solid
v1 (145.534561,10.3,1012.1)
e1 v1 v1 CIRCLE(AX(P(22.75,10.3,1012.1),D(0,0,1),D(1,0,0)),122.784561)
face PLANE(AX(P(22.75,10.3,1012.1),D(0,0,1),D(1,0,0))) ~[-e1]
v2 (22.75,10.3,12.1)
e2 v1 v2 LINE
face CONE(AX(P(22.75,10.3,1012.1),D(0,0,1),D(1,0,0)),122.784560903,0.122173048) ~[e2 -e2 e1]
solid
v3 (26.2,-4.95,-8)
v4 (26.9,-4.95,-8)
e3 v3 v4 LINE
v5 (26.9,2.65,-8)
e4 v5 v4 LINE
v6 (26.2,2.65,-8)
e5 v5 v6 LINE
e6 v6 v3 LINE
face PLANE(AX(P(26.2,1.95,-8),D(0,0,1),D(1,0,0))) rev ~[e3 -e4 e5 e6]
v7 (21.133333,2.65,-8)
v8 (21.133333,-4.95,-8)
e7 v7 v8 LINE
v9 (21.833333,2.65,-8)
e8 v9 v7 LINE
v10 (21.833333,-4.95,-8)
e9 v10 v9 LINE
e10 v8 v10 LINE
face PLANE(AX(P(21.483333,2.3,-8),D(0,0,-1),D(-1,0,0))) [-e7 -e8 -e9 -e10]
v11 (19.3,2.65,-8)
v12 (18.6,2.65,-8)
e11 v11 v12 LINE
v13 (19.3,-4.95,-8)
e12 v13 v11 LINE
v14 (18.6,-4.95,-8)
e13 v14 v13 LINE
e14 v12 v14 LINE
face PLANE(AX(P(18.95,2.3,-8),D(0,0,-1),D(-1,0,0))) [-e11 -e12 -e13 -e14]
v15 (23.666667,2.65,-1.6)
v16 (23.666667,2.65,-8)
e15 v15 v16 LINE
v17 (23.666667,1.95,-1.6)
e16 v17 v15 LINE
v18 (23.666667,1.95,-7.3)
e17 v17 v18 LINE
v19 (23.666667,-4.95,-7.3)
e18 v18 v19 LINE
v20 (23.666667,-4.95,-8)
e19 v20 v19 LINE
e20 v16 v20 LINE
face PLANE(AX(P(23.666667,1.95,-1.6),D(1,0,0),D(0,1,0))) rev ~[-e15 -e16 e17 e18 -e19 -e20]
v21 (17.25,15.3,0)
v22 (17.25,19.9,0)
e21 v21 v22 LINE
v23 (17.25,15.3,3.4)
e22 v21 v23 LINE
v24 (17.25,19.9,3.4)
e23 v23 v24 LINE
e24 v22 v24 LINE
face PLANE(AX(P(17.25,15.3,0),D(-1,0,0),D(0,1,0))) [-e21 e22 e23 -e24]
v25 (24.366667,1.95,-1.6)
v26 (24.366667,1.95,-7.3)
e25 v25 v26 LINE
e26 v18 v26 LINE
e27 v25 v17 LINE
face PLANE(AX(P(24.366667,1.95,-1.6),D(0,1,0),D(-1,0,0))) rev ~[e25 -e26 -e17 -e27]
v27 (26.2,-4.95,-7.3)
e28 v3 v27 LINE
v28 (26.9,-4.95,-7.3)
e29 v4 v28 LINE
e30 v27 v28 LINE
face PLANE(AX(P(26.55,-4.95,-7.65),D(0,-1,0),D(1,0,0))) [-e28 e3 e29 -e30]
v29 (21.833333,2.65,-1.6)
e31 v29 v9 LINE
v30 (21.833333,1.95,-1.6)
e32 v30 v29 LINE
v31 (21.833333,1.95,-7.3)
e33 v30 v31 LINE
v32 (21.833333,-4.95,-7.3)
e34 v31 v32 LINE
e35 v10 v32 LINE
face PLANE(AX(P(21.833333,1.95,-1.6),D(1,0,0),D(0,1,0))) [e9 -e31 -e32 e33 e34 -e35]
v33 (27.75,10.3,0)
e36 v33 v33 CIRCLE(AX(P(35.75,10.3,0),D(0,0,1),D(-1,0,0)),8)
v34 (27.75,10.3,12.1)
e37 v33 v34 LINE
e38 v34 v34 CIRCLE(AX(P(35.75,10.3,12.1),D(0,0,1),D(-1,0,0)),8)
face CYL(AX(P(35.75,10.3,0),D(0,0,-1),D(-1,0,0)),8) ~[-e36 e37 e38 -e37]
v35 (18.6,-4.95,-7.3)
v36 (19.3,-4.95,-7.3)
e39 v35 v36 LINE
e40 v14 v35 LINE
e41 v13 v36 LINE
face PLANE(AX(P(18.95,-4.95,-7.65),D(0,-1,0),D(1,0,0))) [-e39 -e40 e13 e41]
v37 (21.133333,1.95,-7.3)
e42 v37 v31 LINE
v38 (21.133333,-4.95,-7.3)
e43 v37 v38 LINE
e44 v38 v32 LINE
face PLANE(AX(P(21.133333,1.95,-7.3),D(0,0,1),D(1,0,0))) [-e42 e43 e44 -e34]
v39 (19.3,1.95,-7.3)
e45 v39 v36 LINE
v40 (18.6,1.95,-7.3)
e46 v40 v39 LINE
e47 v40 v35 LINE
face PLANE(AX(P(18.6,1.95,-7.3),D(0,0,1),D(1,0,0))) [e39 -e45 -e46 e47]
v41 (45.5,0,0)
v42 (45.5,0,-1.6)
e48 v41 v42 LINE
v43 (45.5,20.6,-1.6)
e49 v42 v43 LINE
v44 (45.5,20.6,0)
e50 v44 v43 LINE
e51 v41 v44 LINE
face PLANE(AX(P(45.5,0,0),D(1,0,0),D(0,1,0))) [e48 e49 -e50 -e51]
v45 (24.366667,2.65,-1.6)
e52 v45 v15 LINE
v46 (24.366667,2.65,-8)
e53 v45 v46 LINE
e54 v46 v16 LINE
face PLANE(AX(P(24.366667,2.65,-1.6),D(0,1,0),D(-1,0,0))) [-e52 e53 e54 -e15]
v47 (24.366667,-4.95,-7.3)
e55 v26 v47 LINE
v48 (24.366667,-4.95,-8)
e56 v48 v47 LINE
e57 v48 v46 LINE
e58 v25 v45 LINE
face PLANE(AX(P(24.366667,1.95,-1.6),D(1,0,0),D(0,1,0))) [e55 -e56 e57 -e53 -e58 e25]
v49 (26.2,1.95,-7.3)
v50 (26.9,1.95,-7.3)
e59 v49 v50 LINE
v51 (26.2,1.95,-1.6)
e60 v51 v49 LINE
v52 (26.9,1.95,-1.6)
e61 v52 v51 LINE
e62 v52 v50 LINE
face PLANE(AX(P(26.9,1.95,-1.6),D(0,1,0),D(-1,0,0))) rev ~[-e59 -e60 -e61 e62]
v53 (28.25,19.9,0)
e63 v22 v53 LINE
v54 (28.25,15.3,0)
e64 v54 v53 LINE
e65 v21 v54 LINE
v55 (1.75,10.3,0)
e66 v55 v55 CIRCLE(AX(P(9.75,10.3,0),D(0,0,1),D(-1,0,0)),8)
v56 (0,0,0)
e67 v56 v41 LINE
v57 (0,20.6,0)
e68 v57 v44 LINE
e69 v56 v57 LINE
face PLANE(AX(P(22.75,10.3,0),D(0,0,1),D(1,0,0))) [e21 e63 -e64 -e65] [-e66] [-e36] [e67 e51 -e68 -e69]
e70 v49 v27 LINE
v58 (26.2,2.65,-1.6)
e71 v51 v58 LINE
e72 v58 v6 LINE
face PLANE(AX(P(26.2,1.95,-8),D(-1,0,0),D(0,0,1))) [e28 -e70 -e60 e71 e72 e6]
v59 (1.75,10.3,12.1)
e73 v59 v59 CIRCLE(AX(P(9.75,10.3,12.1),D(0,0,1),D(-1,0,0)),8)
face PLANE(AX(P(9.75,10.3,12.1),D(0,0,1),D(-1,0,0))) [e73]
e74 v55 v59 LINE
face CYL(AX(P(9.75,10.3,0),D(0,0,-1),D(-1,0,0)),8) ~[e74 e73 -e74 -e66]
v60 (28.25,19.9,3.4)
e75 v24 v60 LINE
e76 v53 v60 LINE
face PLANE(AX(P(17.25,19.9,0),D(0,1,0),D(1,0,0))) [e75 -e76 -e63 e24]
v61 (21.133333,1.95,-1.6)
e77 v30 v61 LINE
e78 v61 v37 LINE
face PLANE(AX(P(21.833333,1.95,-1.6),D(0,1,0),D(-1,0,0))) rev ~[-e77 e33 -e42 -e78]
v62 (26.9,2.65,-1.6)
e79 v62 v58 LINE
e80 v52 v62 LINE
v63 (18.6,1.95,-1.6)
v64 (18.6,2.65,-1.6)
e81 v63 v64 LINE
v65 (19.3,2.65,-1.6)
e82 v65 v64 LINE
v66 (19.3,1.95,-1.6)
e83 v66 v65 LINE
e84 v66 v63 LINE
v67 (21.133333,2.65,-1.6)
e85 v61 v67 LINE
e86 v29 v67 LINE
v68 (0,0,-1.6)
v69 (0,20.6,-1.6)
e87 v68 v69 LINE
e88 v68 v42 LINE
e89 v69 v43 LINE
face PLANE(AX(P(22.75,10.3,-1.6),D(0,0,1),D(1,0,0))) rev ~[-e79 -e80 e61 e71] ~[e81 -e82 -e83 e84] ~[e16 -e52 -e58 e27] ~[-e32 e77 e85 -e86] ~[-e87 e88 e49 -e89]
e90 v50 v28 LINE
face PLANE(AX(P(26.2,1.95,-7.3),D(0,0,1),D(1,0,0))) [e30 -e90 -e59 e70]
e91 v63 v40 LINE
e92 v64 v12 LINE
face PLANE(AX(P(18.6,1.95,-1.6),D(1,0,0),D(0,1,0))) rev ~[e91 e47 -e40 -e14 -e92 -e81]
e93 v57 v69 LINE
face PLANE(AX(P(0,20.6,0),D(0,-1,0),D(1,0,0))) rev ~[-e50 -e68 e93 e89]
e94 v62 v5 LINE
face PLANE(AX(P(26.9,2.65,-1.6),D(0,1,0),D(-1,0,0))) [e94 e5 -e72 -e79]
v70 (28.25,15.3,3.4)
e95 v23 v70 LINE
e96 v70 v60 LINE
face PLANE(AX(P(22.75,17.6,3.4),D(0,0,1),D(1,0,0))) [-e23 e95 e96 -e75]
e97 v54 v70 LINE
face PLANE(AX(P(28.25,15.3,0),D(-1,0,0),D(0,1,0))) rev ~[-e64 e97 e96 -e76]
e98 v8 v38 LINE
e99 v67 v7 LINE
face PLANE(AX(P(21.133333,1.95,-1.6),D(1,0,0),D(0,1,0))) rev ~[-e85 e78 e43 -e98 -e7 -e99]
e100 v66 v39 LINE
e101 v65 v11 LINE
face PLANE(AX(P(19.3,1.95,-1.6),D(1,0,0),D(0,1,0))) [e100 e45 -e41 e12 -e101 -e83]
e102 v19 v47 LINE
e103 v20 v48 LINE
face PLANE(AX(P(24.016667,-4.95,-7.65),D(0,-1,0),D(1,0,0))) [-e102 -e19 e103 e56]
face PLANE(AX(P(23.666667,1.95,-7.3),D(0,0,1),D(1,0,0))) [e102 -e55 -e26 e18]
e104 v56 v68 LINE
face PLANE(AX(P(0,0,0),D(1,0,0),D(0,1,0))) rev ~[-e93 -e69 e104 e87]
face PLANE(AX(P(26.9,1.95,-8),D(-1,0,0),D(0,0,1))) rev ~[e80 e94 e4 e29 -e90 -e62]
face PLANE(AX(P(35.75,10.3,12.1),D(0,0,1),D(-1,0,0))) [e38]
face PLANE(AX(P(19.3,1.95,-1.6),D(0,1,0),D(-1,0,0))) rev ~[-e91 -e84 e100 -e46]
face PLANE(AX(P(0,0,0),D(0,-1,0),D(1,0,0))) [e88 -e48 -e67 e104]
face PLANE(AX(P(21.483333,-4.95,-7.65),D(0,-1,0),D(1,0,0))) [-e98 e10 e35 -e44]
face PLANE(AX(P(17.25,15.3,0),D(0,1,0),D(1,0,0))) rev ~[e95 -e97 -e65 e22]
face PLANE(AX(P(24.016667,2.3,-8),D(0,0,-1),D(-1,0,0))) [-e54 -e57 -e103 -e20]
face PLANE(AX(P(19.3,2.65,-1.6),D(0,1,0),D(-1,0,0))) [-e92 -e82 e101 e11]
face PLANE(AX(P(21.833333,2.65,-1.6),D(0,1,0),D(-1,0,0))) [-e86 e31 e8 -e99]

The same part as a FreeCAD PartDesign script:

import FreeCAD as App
import Part
import Sketcher

V = App.Vector
Q = App.Units.Quantity

doc = App.newDocument("Part")
body = doc.addObject("PartDesign::Body", "Body")

# Sketch on XY plane
sketch1 = body.newObject("Sketcher::SketchObject", "Sketch")
sketch1.AttachmentSupport = (doc.getObject("XY_Plane"), [""])
sketch1.MapMode = "FlatFace"
sketch1.addGeometry([
    Part.LineSegment(V(0, 21, 0), V(0, 0, 0)),
    Part.LineSegment(V(0, 0, 0), V(46, 0, 0)),
    Part.LineSegment(V(46, 0, 0), V(46, 21, 0)),
    Part.LineSegment(V(46, 21, 0), V(0, 21, 0)),
], False)
sketch1.addConstraint([
    Sketcher.Constraint("Coincident", 0, 2, 1, 1),
    Sketcher.Constraint("Coincident", 1, 2, 2, 1),
    Sketcher.Constraint("Coincident", 2, 2, 3, 1),
    Sketcher.Constraint("Coincident", 3, 2, 0, 1),
    Sketcher.Constraint("Vertical", 0),
    Sketcher.Constraint("Horizontal", 1),
    Sketcher.Constraint("Vertical", 2),
    Sketcher.Constraint("Horizontal", 3),
    Sketcher.Constraint("Coincident", 0, 2, -1, 1),
    Sketcher.Constraint("DistanceX", 1, 1, 1, 2, Q("45.5 mm")),
    Sketcher.Constraint("DistanceY", 0, 2, 0, 1, Q("20.6 mm")),
])
pad1 = body.newObject("PartDesign::Pad", "Pad")
pad1.Profile = sketch1
pad1.Length = 1.6
pad1.Reversed = True

# Sketch on XY plane
sketch2 = body.newObject("Sketcher::SketchObject", "Sketch001")
sketch2.AttachmentSupport = (doc.getObject("XY_Plane"), [""])
sketch2.MapMode = "FlatFace"
sketch2.addGeometry([
    Part.Circle(V(10, 10, 0), V(0, 0, 1), 8),
    Part.Circle(V(36, 10, 0), V(0, 0, 1), 8),
], False)
sketch2.addConstraint([
    Sketcher.Constraint("Equal", 0, 1),
    Sketcher.Constraint("Horizontal", 0, 3, 1, 3),
    Sketcher.Constraint("Diameter", 0, Q("16 mm")),
    Sketcher.Constraint("DistanceX", 0, 3, 1, 3, Q("26 mm")),
    Sketcher.Constraint("DistanceY", -1, 1, 0, 3, Q("10.3 mm")),
    Sketcher.Constraint("DistanceX", -1, 1, 0, 3, Q("9.75 mm")),
])
pad2 = body.newObject("PartDesign::Pad", "Pad001")
pad2.Profile = sketch2
pad2.Length = 12.1

# Sketch on XY plane
sketch3 = body.newObject("Sketcher::SketchObject", "Sketch002")
sketch3.AttachmentSupport = (doc.getObject("XY_Plane"), [""])
sketch3.MapMode = "FlatFace"
sketch3.addGeometry([
    Part.LineSegment(V(17.2, 19.9, 0), V(17.2, 15.3, 0)),
    Part.LineSegment(V(17.2, 15.3, 0), V(28.2, 15.3, 0)),
    Part.LineSegment(V(28.2, 15.3, 0), V(28.2, 19.9, 0)),
    Part.LineSegment(V(28.2, 19.9, 0), V(17.2, 19.9, 0)),
], False)
sketch3.addConstraint([
    Sketcher.Constraint("Coincident", 0, 2, 1, 1),
    Sketcher.Constraint("Coincident", 1, 2, 2, 1),
    Sketcher.Constraint("Coincident", 2, 2, 3, 1),
    Sketcher.Constraint("Coincident", 3, 2, 0, 1),
    Sketcher.Constraint("Vertical", 0),
    Sketcher.Constraint("Horizontal", 1),
    Sketcher.Constraint("Vertical", 2),
    Sketcher.Constraint("Horizontal", 3),
    Sketcher.Constraint("DistanceX", 1, 1, 1, 2, Q("11 mm")),
    Sketcher.Constraint("DistanceY", 0, 2, 0, 1, Q("4.6 mm")),
    Sketcher.Constraint("DistanceY", -1, 1, 0, 2, Q("15.3 mm")),
    Sketcher.Constraint("DistanceX", -1, 1, 0, 2, Q("17.25 mm")),
])
pad3 = body.newObject("PartDesign::Pad", "Pad002")
pad3.Profile = sketch3
pad3.Length = 3.4

# Sketch on XY plane
sketch4 = body.newObject("Sketcher::SketchObject", "Sketch003")
sketch4.AttachmentSupport = (doc.getObject("XY_Plane"), [""])
sketch4.MapMode = "FlatFace"
sketch4.AttachmentOffset = App.Placement(V(0, 0, -1.6), App.Rotation())
sketch4.addGeometry([
    Part.LineSegment(V(26.9, 2.6, 0), V(26.9, 1.9, 0)),  # 0
    Part.LineSegment(V(26.9, 1.9, 0), V(26.2, 1.9, 0)),  # 1
    Part.LineSegment(V(26.2, 1.9, 0), V(26.2, 2.6, 0)),  # 2
    Part.LineSegment(V(26.2, 2.6, 0), V(26.9, 2.6, 0)),  # 3
    Part.LineSegment(V(24.4, 2.6, 0), V(24.4, 1.9, 0)),  # 4
    Part.LineSegment(V(24.4, 1.9, 0), V(23.7, 1.9, 0)),  # 5
    Part.LineSegment(V(23.7, 1.9, 0), V(23.7, 2.6, 0)),  # 6
    Part.LineSegment(V(23.7, 2.6, 0), V(24.4, 2.6, 0)),  # 7
    Part.LineSegment(V(21.8, 2.6, 0), V(21.8, 1.9, 0)),  # 8
    Part.LineSegment(V(21.8, 1.9, 0), V(21.1, 1.9, 0)),  # 9
    Part.LineSegment(V(21.1, 1.9, 0), V(21.1, 2.6, 0)),  # 10
    Part.LineSegment(V(21.1, 2.6, 0), V(21.8, 2.6, 0)),  # 11
    Part.LineSegment(V(19.3, 2.6, 0), V(19.3, 1.9, 0)),  # 12
    Part.LineSegment(V(19.3, 1.9, 0), V(18.6, 1.9, 0)),  # 13
    Part.LineSegment(V(18.6, 1.9, 0), V(18.6, 2.6, 0)),  # 14
    Part.LineSegment(V(18.6, 2.6, 0), V(19.3, 2.6, 0)),  # 15
], False)
sketch4.addConstraint([
    Sketcher.Constraint("Coincident", 0, 2, 1, 1),
    Sketcher.Constraint("Coincident", 1, 2, 2, 1),
    Sketcher.Constraint("Coincident", 2, 2, 3, 1),
    Sketcher.Constraint("Coincident", 3, 2, 0, 1),
    Sketcher.Constraint("Coincident", 4, 2, 5, 1),
    Sketcher.Constraint("Coincident", 5, 2, 6, 1),
    Sketcher.Constraint("Coincident", 6, 2, 7, 1),
    Sketcher.Constraint("Coincident", 7, 2, 4, 1),
    Sketcher.Constraint("Coincident", 8, 2, 9, 1),
    Sketcher.Constraint("Coincident", 9, 2, 10, 1),
    Sketcher.Constraint("Coincident", 10, 2, 11, 1),
    Sketcher.Constraint("Coincident", 11, 2, 8, 1),
    Sketcher.Constraint("Coincident", 12, 2, 13, 1),
    Sketcher.Constraint("Coincident", 13, 2, 14, 1),
    Sketcher.Constraint("Coincident", 14, 2, 15, 1),
    Sketcher.Constraint("Coincident", 15, 2, 12, 1),
    Sketcher.Constraint("Vertical", 0),
    Sketcher.Constraint("Horizontal", 1),
    Sketcher.Constraint("Vertical", 2),
    Sketcher.Constraint("Horizontal", 3),
    Sketcher.Constraint("Vertical", 4),
    Sketcher.Constraint("Horizontal", 5),
    Sketcher.Constraint("Vertical", 6),
    Sketcher.Constraint("Horizontal", 7),
    Sketcher.Constraint("Vertical", 8),
    Sketcher.Constraint("Horizontal", 9),
    Sketcher.Constraint("Vertical", 10),
    Sketcher.Constraint("Horizontal", 11),
    Sketcher.Constraint("Vertical", 12),
    Sketcher.Constraint("Horizontal", 13),
    Sketcher.Constraint("Vertical", 14),
    Sketcher.Constraint("Horizontal", 15),
    Sketcher.Constraint("Horizontal", 1, 2, 4, 2),
    Sketcher.Constraint("Horizontal", 3, 2, 6, 2),
    Sketcher.Constraint("Horizontal", 5, 2, 8, 2),
    Sketcher.Constraint("Horizontal", 7, 2, 10, 2),
    Sketcher.Constraint("Horizontal", 9, 2, 12, 2),
    Sketcher.Constraint("Horizontal", 11, 2, 14, 2),
    Sketcher.Constraint("Equal", 3, 5),
    Sketcher.Constraint("Equal", 7, 9),
    Sketcher.Constraint("Equal", 11, 13),
    Sketcher.Constraint("Equal", 15, 0),
    Sketcher.Constraint("DistanceX", 1, 2, 1, 1, Q("0.7 mm")),
    Sketcher.Constraint("DistanceX", -1, 1, 0, 2, Q("26.9 mm")),
    Sketcher.Constraint("DistanceX", -1, 1, 12, 2, Q("19.3 mm")),
    Sketcher.Constraint("DistanceY", -1, 1, 0, 2, Q("1.95 mm")),
    Sketcher.Constraint("DistanceX", -1, 1, 4, 2, Q("24.366667 mm")),
    Sketcher.Constraint("DistanceX", -1, 1, 8, 2, Q("21.833333 mm")),
])
pad4 = body.newObject("PartDesign::Pad", "Pad003")
pad4.Profile = sketch4
pad4.Length = 6.4
pad4.Reversed = True

# Sketch on XZ plane
sketch5 = body.newObject("Sketcher::SketchObject", "Sketch004")
sketch5.AttachmentSupport = (doc.getObject("XZ_Plane"), [""])
sketch5.MapMode = "FlatFace"
sketch5.AttachmentOffset = App.Placement(V(0, 0, -1.95), App.Rotation())
sketch5.addGeometry([
    Part.LineSegment(V(26.2, -7.3, 0), V(26.2, -8, 0)),  # 0
    Part.LineSegment(V(26.2, -8, 0), V(26.9, -8, 0)),  # 1
    Part.LineSegment(V(26.9, -8, 0), V(26.9, -7.3, 0)),  # 2
    Part.LineSegment(V(26.9, -7.3, 0), V(26.2, -7.3, 0)),  # 3
    Part.LineSegment(V(23.7, -7.3, 0), V(23.7, -8, 0)),  # 4
    Part.LineSegment(V(23.7, -8, 0), V(24.4, -8, 0)),  # 5
    Part.LineSegment(V(24.4, -8, 0), V(24.4, -7.3, 0)),  # 6
    Part.LineSegment(V(24.4, -7.3, 0), V(23.7, -7.3, 0)),  # 7
    Part.LineSegment(V(21.1, -7.3, 0), V(21.1, -8, 0)),  # 8
    Part.LineSegment(V(21.1, -8, 0), V(21.8, -8, 0)),  # 9
    Part.LineSegment(V(21.8, -8, 0), V(21.8, -7.3, 0)),  # 10
    Part.LineSegment(V(21.8, -7.3, 0), V(21.1, -7.3, 0)),  # 11
    Part.LineSegment(V(18.6, -7.3, 0), V(18.6, -8, 0)),  # 12
    Part.LineSegment(V(18.6, -8, 0), V(19.3, -8, 0)),  # 13
    Part.LineSegment(V(19.3, -8, 0), V(19.3, -7.3, 0)),  # 14
    Part.LineSegment(V(19.3, -7.3, 0), V(18.6, -7.3, 0)),  # 15
], False)
sketch5.addConstraint([
    Sketcher.Constraint("Coincident", 0, 2, 1, 1),
    Sketcher.Constraint("Coincident", 1, 2, 2, 1),
    Sketcher.Constraint("Coincident", 2, 2, 3, 1),
    Sketcher.Constraint("Coincident", 3, 2, 0, 1),
    Sketcher.Constraint("Coincident", 4, 2, 5, 1),
    Sketcher.Constraint("Coincident", 5, 2, 6, 1),
    Sketcher.Constraint("Coincident", 6, 2, 7, 1),
    Sketcher.Constraint("Coincident", 7, 2, 4, 1),
    Sketcher.Constraint("Coincident", 8, 2, 9, 1),
    Sketcher.Constraint("Coincident", 9, 2, 10, 1),
    Sketcher.Constraint("Coincident", 10, 2, 11, 1),
    Sketcher.Constraint("Coincident", 11, 2, 8, 1),
    Sketcher.Constraint("Coincident", 12, 2, 13, 1),
    Sketcher.Constraint("Coincident", 13, 2, 14, 1),
    Sketcher.Constraint("Coincident", 14, 2, 15, 1),
    Sketcher.Constraint("Coincident", 15, 2, 12, 1),
    Sketcher.Constraint("Vertical", 0),
    Sketcher.Constraint("Horizontal", 1),
    Sketcher.Constraint("Vertical", 2),
    Sketcher.Constraint("Horizontal", 3),
    Sketcher.Constraint("Vertical", 4),
    Sketcher.Constraint("Horizontal", 5),
    Sketcher.Constraint("Vertical", 6),
    Sketcher.Constraint("Horizontal", 7),
    Sketcher.Constraint("Vertical", 8),
    Sketcher.Constraint("Horizontal", 9),
    Sketcher.Constraint("Vertical", 10),
    Sketcher.Constraint("Horizontal", 11),
    Sketcher.Constraint("Vertical", 12),
    Sketcher.Constraint("Horizontal", 13),
    Sketcher.Constraint("Vertical", 14),
    Sketcher.Constraint("Horizontal", 15),
    Sketcher.Constraint("Horizontal", 1, 2, 4, 2),
    Sketcher.Constraint("Horizontal", 3, 2, 6, 2),
    Sketcher.Constraint("Horizontal", 5, 2, 8, 2),
    Sketcher.Constraint("Horizontal", 7, 2, 10, 2),
    Sketcher.Constraint("Horizontal", 9, 2, 12, 2),
    Sketcher.Constraint("Horizontal", 11, 2, 14, 2),
    Sketcher.Constraint("Equal", 3, 5),
    Sketcher.Constraint("Equal", 7, 9),
    Sketcher.Constraint("Equal", 11, 13),
    Sketcher.Constraint("Equal", 15, 0),
    Sketcher.Constraint("DistanceX", 1, 1, 1, 2, Q("0.7 mm")),
    Sketcher.Constraint("DistanceY", 0, 2, -1, 1, Q("8 mm")),
    Sketcher.Constraint("DistanceX", -1, 1, 0, 2, Q("26.2 mm")),
    Sketcher.Constraint("DistanceX", -1, 1, 12, 2, Q("18.6 mm")),
    Sketcher.Constraint("DistanceX", -1, 1, 4, 2, Q("23.666667 mm")),
    Sketcher.Constraint("DistanceX", -1, 1, 8, 2, Q("21.133333 mm")),
])
pad5 = body.newObject("PartDesign::Pad", "Pad004")
pad5.Profile = sketch5
pad5.Length = 6.9
body2 = doc.addObject("PartDesign::Body", "Body001")

# Sketch on YZ plane
sketch6 = body2.newObject("Sketcher::SketchObject", "Sketch005")
sketch6.AttachmentSupport = (doc.getObject("YZ_Plane001"), [""])
sketch6.MapMode = "FlatFace"
sketch6.AttachmentOffset = App.Placement(V(0, 0, 22.75), App.Rotation())
sketch6.addGeometry([
    Part.LineSegment(V(10, 1012, 0), V(10, 12, 0)),
    Part.LineSegment(V(10, 12, 0), V(-112, 1012, 0)),
    Part.LineSegment(V(-112, 1012, 0), V(10, 1012, 0)),
], False)
sketch6.addGeometry(Part.LineSegment(V(10, 12, 0), V(10, 1012, 0)), True)  # axis
sketch6.addConstraint([
    Sketcher.Constraint("Coincident", 0, 2, 1, 1),
    Sketcher.Constraint("Coincident", 1, 2, 2, 1),
    Sketcher.Constraint("Coincident", 2, 2, 0, 1),
    Sketcher.Constraint("Vertical", 0),
    Sketcher.Constraint("Horizontal", 2),
    Sketcher.Constraint("Vertical", 3),
    Sketcher.Constraint("Coincident", 3, 1, 0, 2),
    Sketcher.Constraint("Horizontal", 1, 2, 3, 2),
    Sketcher.Constraint("DistanceY", 0, 2, 0, 1, Q("1000 mm")),
    Sketcher.Constraint("Angle", 1, Q("97 deg")),
    Sketcher.Constraint("DistanceX", -1, 1, 0, 2, Q("10.3 mm")),
    Sketcher.Constraint("DistanceY", -1, 1, 0, 2, Q("12.1 mm")),
])
revolution = body2.newObject("PartDesign::Revolution", "Revolution")
revolution.Profile = sketch6
revolution.ReferenceAxis = (sketch6, ["Axis0"])
revolution.Angle = 360

doc.recompute()
